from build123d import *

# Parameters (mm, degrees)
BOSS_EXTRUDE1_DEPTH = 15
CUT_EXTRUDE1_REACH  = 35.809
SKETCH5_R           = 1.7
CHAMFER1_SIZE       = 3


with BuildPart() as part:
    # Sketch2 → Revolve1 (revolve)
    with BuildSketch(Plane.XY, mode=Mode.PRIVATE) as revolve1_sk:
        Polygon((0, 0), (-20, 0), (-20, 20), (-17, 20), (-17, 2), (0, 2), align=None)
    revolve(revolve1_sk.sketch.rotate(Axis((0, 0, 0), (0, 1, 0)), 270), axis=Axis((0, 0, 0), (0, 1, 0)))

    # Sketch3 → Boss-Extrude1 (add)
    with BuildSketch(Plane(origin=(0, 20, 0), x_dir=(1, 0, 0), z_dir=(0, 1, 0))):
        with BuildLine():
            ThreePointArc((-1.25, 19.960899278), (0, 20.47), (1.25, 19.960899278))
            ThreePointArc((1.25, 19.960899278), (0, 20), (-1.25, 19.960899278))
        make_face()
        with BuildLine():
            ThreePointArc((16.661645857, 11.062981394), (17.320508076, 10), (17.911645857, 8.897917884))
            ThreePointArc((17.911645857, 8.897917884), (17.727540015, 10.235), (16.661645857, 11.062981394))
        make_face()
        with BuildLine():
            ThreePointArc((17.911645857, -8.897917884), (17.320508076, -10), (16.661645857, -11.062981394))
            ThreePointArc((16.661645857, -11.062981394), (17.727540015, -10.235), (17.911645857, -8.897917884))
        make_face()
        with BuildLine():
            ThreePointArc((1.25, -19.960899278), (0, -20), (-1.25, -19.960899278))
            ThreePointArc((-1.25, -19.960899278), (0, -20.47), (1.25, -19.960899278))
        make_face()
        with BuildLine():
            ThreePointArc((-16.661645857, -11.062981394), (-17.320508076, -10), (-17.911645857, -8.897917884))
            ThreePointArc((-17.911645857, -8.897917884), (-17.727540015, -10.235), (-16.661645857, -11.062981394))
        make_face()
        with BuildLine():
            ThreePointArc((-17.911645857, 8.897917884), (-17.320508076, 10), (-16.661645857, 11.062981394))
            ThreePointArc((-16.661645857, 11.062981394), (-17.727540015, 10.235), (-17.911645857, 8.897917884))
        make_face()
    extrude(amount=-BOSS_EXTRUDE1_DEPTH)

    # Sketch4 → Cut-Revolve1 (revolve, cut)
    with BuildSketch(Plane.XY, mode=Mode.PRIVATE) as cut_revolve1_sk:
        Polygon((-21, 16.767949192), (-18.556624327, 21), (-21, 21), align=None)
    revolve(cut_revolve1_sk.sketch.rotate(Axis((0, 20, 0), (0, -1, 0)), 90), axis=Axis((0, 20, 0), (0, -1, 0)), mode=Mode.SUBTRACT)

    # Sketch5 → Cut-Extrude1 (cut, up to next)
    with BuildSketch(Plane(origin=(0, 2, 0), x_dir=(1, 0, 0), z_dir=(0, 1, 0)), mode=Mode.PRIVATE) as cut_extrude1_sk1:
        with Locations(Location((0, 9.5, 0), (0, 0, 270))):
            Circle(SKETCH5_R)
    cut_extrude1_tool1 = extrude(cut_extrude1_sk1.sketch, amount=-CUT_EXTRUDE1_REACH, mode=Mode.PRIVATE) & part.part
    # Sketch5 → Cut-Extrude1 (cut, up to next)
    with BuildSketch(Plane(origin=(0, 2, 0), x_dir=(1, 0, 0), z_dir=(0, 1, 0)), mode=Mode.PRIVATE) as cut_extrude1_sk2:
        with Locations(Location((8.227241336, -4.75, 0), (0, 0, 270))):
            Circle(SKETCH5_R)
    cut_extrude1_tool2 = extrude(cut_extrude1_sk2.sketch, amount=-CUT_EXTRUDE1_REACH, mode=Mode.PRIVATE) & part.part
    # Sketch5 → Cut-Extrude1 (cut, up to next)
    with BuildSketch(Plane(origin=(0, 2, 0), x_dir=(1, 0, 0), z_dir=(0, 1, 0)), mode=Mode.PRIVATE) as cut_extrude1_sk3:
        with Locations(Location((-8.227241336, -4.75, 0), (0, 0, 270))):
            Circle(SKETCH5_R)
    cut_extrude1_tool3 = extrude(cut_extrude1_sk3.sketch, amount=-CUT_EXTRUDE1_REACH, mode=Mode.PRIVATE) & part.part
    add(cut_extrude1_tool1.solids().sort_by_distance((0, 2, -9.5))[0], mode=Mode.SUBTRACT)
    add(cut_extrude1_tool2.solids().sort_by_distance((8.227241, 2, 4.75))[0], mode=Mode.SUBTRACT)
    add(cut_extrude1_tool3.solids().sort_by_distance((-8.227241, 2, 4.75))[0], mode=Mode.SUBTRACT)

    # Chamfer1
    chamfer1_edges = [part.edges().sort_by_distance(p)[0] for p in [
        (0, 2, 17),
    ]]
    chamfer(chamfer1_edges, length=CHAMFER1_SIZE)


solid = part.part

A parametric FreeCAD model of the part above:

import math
import FreeCAD as App
import Part
import Sketcher
from FreeCAD import Vector
Q = App.Units.Quantity


def edges_at(feature, points):
    """Names of the edges that pass closest to the given points."""
    edges = feature.Shape.Edges
    near = lambda p: min(range(len(edges)), key=lambda i: edges[i].distToShape(Part.Vertex(*p))[0])
    return sorted({f"Edge{near(p) + 1}" for p in points})


def add_polygon(sketch, points):
    """Adds a closed chain of lines whose ends are joined by coincident constraints."""
    first, n = sketch.GeometryCount, len(points)
    for a, b in zip(points, points[1:] + points[:1]):
        sketch.addGeometry(Part.LineSegment(App.Vector(*a, 0), App.Vector(*b, 0)), False)
    for i in range(n):
        sketch.addConstraint(Sketcher.Constraint("Coincident", first + i, 2, first + (i + 1) % n, 1))

doc = App.newDocument("Part")
body = doc.addObject("PartDesign::Body", "Body")

# Sketch on XY plane
sketch1 = body.newObject("Sketcher::SketchObject", "Sketch")
sketch1.AttachmentSupport = (doc.getObject("XY_Plane"), [""])
sketch1.MapMode = "FlatFace"
add_polygon(sketch1, [(-20, 0), (0, 0), (0, 2), (-17, 2), (-17, 20), (-20, 20)])  # lines 0-5
sketch1.addConstraint([
    Sketcher.Constraint("Horizontal", 0),
    Sketcher.Constraint("Vertical", 1),
    Sketcher.Constraint("Horizontal", 2),
    Sketcher.Constraint("Vertical", 3),
    Sketcher.Constraint("Horizontal", 4),
    Sketcher.Constraint("Vertical", 5),
    Sketcher.Constraint("Coincident", 0, 2, -1, 1),
    Sketcher.Constraint("Equal", 0, 5),
    Sketcher.Constraint("DistanceX", 0, 1, 0, 2, 20.0),
    Sketcher.Constraint("DistanceX", 2, 2, 2, 1, 17.0),
    Sketcher.Constraint("DistanceY", 1, 1, 1, 2, 2.0),
])
revolution = body.newObject("PartDesign::Revolution", "Revolution")
revolution.Profile = sketch1
revolution.ReferenceAxis = (sketch1, ["V_Axis"])
revolution.Angle = 360

# Sketch on XZ plane
sketch2 = body.newObject("Sketcher::SketchObject", "Sketch001")
sketch2.AttachmentSupport = (doc.getObject("XZ_Plane"), [""])
sketch2.MapMode = "FlatFace"
sketch2.AttachmentOffset = App.Placement(Vector(0, 0, -20), App.Rotation())
sketch2.addGeometry([
    Part.ArcOfCircle(Part.Circle(Vector(0, -18.680881, 0), Vector(0, 0, 1), 1.789119), math.radians(-134.320226), math.radians(-45.679774)),  # 0
    Part.ArcOfCircle(Part.Circle(Vector(0, 0, 0), Vector(0, 0, 1), 20), math.radians(-93.583322), math.radians(-86.416678)),  # 1
    Part.ArcOfCircle(Part.Circle(Vector(0, 0, 0), Vector(0, 0, 1), 20), math.radians(-33.583322), math.radians(-26.416678)),  # 2
    Part.ArcOfCircle(Part.Circle(Vector(16.178118, -9.340441, 0), Vector(0, 0, 1), 1.789119), math.radians(-74.320226), math.radians(14.320226)),  # 3
    Part.ArcOfCircle(Part.Circle(Vector(0, 0, 0), Vector(0, 0, 1), 20), math.radians(26.416678), math.radians(33.583322)),  # 4
    Part.ArcOfCircle(Part.Circle(Vector(16.178118, 9.340441, 0), Vector(0, 0, 1), 1.789119), math.radians(-14.320226), math.radians(74.320226)),  # 5
    Part.ArcOfCircle(Part.Circle(Vector(0, 0, 0), Vector(0, 0, 1), 20), math.radians(86.416678), math.radians(93.583322)),  # 6
    Part.ArcOfCircle(Part.Circle(Vector(0, 18.680881, 0), Vector(0, 0, 1), 1.789119), math.radians(45.679774), math.radians(134.320226)),  # 7
    Part.ArcOfCircle(Part.Circle(Vector(0, 0, 0), Vector(0, 0, 1), 20), math.radians(146.416678), math.radians(153.583322)),  # 8
    Part.ArcOfCircle(Part.Circle(Vector(-16.178118, 9.340441, 0), Vector(0, 0, 1), 1.789119), math.radians(105.679774), math.radians(194.320226)),  # 9
    Part.ArcOfCircle(Part.Circle(Vector(0, 0, 0), Vector(0, 0, 1), 20), math.radians(-153.583322), math.radians(-146.416678)),  # 10
    Part.ArcOfCircle(Part.Circle(Vector(-16.178118, -9.340441, 0), Vector(0, 0, 1), 1.789119), math.radians(165.679774), math.radians(254.320226)),  # 11
], False)
sketch2.addConstraint([
    Sketcher.Constraint("Coincident", 0, 1, 1, 1),
    Sketcher.Constraint("Coincident", 1, 2, 0, 2),
    Sketcher.Constraint("Coincident", 2, 1, 3, 1),
    Sketcher.Constraint("Coincident", 3, 2, 2, 2),
    Sketcher.Constraint("Coincident", 4, 1, 5, 1),
    Sketcher.Constraint("Coincident", 5, 2, 4, 2),
    Sketcher.Constraint("Coincident", 6, 1, 7, 1),
    Sketcher.Constraint("Coincident", 7, 2, 6, 2),
    Sketcher.Constraint("Coincident", 8, 1, 9, 1),
    Sketcher.Constraint("Coincident", 9, 2, 8, 2),
    Sketcher.Constraint("Coincident", 10, 1, 11, 1),
    Sketcher.Constraint("Coincident", 11, 2, 10, 2),
    Sketcher.Constraint("Coincident", 1, 3, -1, 1),
    Sketcher.Constraint("Coincident", 2, 3, -1, 1),
    Sketcher.Constraint("Coincident", 4, 3, -1, 1),
    Sketcher.Constraint("Coincident", 6, 3, -1, 1),
    Sketcher.Constraint("Coincident", 8, 3, -1, 1),
    Sketcher.Constraint("Coincident", 10, 3, -1, 1),
    Sketcher.Constraint("Equal", 1, 2),
    Sketcher.Constraint("Equal", 0, 3),
    Sketcher.Constraint("Equal", 2, 4),
    Sketcher.Constraint("Equal", 3, 5),
    Sketcher.Constraint("Equal", 4, 6),
    Sketcher.Constraint("Equal", 5, 7),
    Sketcher.Constraint("Equal", 6, 8),
    Sketcher.Constraint("Equal", 7, 9),
    Sketcher.Constraint("Equal", 8, 10),
    Sketcher.Constraint("Equal", 9, 11),
    Sketcher.Constraint("Symmetric", 0, 3, 7, 3, -1, 1),
    Sketcher.Constraint("Symmetric", 3, 3, 9, 3, -1, 1),
    Sketcher.Constraint("Symmetric", 5, 3, 11, 3, -1, 1),
    Sketcher.Constraint("Symmetric", 5, 3, 9, 3, -2),
    Sketcher.Constraint("PointOnObject", 0, 3, -2),
    Sketcher.Constraint("Radius", 1, 20.0),
    Sketcher.Constraint("DistanceX", 0, 1, 1, 2, 2.5),
    Sketcher.Constraint("Radius", 0, 1.789119),
    Sketcher.Constraint("DistanceX", 2, 1, 3, 2, 1.25),
    Sketcher.Constraint("DistanceY", 0, 3, 2, 1, 7.6179),
])
pad1 = body.newObject("PartDesign::Pad", "Pad")
pad1.Profile = sketch2
pad1.Length = 15

# Sketch on XY plane
sketch3 = body.newObject("Sketcher::SketchObject", "Sketch002")
sketch3.AttachmentSupport = (doc.getObject("XY_Plane"), [""])
sketch3.MapMode = "FlatFace"
add_polygon(sketch3, [(-21, 16.767949), (-18.556624, 21), (-21, 21)])  # lines 0-2
sketch3.addConstraint([
    Sketcher.Constraint("Horizontal", 1),
    Sketcher.Constraint("Vertical", 2),
    Sketcher.Constraint("Angle", 0, Q("60 deg")),
    Sketcher.Constraint("DistanceY", -1, 1, 0, 2, 21.0),
    Sketcher.Constraint("DistanceX", 1, 2, -1, 1, 21.0),
    Sketcher.Constraint("DistanceY", 2, 2, 2, 1, 4.232051),
])
groove = body.newObject("PartDesign::Groove", "Groove")
groove.Profile = sketch3
groove.ReferenceAxis = (sketch3, ["V_Axis"])
groove.Angle = 360

# Sketch on XZ plane
sketch4 = body.newObject("Sketcher::SketchObject", "Sketch003")
sketch4.AttachmentSupport = (doc.getObject("XZ_Plane"), [""])
sketch4.MapMode = "FlatFace"
sketch4.AttachmentOffset = App.Placement(Vector(0, 0, -2), App.Rotation())
sketch4.addGeometry(Part.Circle(Vector(0, -9.5, 0), Vector(0, 0, 1), 1.7), False)
sketch4.addConstraint([
    Sketcher.Constraint("PointOnObject", 0, 3, -2),
    Sketcher.Constraint("Diameter", 0, 3.4),
    Sketcher.Constraint("DistanceY", 0, 3, -1, 1, 9.5),
])
pocket1 = body.newObject("PartDesign::Pocket", "Pocket")
pocket1.Profile = sketch4
pocket1.Type = "UpToFirst"
pocket1.Reversed = True

# Sketch on XZ plane
sketch5 = body.newObject("Sketcher::SketchObject", "Sketch004")
sketch5.AttachmentSupport = (doc.getObject("XZ_Plane"), [""])
sketch5.MapMode = "FlatFace"
sketch5.AttachmentOffset = App.Placement(Vector(0, 0, -2), App.Rotation())
sketch5.addGeometry(Part.Circle(Vector(8.227241, 4.75, 0), Vector(0, 0, 1), 1.7), False)
sketch5.addConstraint([
    Sketcher.Constraint("Diameter", 0, 3.4),
    Sketcher.Constraint("DistanceY", -1, 1, 0, 3, 4.75),
    Sketcher.Constraint("DistanceX", -1, 1, 0, 3, 8.227241),
])
pocket2 = body.newObject("PartDesign::Pocket", "Pocket001")
pocket2.Profile = sketch5
pocket2.Type = "UpToFirst"
pocket2.Reversed = True

# Sketch on XZ plane
sketch6 = body.newObject("Sketcher::SketchObject", "Sketch005")
sketch6.AttachmentSupport = (doc.getObject("XZ_Plane"), [""])
sketch6.MapMode = "FlatFace"
sketch6.AttachmentOffset = App.Placement(Vector(0, 0, -2), App.Rotation())
sketch6.addGeometry(Part.Circle(Vector(-8.227241, 4.75, 0), Vector(0, 0, 1), 1.7), False)
sketch6.addConstraint([
    Sketcher.Constraint("Diameter", 0, 3.4),
    Sketcher.Constraint("DistanceY", -1, 1, 0, 3, 4.75),
    Sketcher.Constraint("DistanceX", 0, 3, -1, 1, 8.227241),
])
pocket3 = body.newObject("PartDesign::Pocket", "Pocket002")
pocket3.Profile = sketch6
pocket3.Type = "UpToFirst"
pocket3.Reversed = True
doc.recompute()

chamfer = body.newObject("PartDesign::Chamfer", "Chamfer")
chamfer.Base = (pocket3, edges_at(pocket3, [(0, 2, 17)]))
chamfer.Size = 3

doc.recompute()
